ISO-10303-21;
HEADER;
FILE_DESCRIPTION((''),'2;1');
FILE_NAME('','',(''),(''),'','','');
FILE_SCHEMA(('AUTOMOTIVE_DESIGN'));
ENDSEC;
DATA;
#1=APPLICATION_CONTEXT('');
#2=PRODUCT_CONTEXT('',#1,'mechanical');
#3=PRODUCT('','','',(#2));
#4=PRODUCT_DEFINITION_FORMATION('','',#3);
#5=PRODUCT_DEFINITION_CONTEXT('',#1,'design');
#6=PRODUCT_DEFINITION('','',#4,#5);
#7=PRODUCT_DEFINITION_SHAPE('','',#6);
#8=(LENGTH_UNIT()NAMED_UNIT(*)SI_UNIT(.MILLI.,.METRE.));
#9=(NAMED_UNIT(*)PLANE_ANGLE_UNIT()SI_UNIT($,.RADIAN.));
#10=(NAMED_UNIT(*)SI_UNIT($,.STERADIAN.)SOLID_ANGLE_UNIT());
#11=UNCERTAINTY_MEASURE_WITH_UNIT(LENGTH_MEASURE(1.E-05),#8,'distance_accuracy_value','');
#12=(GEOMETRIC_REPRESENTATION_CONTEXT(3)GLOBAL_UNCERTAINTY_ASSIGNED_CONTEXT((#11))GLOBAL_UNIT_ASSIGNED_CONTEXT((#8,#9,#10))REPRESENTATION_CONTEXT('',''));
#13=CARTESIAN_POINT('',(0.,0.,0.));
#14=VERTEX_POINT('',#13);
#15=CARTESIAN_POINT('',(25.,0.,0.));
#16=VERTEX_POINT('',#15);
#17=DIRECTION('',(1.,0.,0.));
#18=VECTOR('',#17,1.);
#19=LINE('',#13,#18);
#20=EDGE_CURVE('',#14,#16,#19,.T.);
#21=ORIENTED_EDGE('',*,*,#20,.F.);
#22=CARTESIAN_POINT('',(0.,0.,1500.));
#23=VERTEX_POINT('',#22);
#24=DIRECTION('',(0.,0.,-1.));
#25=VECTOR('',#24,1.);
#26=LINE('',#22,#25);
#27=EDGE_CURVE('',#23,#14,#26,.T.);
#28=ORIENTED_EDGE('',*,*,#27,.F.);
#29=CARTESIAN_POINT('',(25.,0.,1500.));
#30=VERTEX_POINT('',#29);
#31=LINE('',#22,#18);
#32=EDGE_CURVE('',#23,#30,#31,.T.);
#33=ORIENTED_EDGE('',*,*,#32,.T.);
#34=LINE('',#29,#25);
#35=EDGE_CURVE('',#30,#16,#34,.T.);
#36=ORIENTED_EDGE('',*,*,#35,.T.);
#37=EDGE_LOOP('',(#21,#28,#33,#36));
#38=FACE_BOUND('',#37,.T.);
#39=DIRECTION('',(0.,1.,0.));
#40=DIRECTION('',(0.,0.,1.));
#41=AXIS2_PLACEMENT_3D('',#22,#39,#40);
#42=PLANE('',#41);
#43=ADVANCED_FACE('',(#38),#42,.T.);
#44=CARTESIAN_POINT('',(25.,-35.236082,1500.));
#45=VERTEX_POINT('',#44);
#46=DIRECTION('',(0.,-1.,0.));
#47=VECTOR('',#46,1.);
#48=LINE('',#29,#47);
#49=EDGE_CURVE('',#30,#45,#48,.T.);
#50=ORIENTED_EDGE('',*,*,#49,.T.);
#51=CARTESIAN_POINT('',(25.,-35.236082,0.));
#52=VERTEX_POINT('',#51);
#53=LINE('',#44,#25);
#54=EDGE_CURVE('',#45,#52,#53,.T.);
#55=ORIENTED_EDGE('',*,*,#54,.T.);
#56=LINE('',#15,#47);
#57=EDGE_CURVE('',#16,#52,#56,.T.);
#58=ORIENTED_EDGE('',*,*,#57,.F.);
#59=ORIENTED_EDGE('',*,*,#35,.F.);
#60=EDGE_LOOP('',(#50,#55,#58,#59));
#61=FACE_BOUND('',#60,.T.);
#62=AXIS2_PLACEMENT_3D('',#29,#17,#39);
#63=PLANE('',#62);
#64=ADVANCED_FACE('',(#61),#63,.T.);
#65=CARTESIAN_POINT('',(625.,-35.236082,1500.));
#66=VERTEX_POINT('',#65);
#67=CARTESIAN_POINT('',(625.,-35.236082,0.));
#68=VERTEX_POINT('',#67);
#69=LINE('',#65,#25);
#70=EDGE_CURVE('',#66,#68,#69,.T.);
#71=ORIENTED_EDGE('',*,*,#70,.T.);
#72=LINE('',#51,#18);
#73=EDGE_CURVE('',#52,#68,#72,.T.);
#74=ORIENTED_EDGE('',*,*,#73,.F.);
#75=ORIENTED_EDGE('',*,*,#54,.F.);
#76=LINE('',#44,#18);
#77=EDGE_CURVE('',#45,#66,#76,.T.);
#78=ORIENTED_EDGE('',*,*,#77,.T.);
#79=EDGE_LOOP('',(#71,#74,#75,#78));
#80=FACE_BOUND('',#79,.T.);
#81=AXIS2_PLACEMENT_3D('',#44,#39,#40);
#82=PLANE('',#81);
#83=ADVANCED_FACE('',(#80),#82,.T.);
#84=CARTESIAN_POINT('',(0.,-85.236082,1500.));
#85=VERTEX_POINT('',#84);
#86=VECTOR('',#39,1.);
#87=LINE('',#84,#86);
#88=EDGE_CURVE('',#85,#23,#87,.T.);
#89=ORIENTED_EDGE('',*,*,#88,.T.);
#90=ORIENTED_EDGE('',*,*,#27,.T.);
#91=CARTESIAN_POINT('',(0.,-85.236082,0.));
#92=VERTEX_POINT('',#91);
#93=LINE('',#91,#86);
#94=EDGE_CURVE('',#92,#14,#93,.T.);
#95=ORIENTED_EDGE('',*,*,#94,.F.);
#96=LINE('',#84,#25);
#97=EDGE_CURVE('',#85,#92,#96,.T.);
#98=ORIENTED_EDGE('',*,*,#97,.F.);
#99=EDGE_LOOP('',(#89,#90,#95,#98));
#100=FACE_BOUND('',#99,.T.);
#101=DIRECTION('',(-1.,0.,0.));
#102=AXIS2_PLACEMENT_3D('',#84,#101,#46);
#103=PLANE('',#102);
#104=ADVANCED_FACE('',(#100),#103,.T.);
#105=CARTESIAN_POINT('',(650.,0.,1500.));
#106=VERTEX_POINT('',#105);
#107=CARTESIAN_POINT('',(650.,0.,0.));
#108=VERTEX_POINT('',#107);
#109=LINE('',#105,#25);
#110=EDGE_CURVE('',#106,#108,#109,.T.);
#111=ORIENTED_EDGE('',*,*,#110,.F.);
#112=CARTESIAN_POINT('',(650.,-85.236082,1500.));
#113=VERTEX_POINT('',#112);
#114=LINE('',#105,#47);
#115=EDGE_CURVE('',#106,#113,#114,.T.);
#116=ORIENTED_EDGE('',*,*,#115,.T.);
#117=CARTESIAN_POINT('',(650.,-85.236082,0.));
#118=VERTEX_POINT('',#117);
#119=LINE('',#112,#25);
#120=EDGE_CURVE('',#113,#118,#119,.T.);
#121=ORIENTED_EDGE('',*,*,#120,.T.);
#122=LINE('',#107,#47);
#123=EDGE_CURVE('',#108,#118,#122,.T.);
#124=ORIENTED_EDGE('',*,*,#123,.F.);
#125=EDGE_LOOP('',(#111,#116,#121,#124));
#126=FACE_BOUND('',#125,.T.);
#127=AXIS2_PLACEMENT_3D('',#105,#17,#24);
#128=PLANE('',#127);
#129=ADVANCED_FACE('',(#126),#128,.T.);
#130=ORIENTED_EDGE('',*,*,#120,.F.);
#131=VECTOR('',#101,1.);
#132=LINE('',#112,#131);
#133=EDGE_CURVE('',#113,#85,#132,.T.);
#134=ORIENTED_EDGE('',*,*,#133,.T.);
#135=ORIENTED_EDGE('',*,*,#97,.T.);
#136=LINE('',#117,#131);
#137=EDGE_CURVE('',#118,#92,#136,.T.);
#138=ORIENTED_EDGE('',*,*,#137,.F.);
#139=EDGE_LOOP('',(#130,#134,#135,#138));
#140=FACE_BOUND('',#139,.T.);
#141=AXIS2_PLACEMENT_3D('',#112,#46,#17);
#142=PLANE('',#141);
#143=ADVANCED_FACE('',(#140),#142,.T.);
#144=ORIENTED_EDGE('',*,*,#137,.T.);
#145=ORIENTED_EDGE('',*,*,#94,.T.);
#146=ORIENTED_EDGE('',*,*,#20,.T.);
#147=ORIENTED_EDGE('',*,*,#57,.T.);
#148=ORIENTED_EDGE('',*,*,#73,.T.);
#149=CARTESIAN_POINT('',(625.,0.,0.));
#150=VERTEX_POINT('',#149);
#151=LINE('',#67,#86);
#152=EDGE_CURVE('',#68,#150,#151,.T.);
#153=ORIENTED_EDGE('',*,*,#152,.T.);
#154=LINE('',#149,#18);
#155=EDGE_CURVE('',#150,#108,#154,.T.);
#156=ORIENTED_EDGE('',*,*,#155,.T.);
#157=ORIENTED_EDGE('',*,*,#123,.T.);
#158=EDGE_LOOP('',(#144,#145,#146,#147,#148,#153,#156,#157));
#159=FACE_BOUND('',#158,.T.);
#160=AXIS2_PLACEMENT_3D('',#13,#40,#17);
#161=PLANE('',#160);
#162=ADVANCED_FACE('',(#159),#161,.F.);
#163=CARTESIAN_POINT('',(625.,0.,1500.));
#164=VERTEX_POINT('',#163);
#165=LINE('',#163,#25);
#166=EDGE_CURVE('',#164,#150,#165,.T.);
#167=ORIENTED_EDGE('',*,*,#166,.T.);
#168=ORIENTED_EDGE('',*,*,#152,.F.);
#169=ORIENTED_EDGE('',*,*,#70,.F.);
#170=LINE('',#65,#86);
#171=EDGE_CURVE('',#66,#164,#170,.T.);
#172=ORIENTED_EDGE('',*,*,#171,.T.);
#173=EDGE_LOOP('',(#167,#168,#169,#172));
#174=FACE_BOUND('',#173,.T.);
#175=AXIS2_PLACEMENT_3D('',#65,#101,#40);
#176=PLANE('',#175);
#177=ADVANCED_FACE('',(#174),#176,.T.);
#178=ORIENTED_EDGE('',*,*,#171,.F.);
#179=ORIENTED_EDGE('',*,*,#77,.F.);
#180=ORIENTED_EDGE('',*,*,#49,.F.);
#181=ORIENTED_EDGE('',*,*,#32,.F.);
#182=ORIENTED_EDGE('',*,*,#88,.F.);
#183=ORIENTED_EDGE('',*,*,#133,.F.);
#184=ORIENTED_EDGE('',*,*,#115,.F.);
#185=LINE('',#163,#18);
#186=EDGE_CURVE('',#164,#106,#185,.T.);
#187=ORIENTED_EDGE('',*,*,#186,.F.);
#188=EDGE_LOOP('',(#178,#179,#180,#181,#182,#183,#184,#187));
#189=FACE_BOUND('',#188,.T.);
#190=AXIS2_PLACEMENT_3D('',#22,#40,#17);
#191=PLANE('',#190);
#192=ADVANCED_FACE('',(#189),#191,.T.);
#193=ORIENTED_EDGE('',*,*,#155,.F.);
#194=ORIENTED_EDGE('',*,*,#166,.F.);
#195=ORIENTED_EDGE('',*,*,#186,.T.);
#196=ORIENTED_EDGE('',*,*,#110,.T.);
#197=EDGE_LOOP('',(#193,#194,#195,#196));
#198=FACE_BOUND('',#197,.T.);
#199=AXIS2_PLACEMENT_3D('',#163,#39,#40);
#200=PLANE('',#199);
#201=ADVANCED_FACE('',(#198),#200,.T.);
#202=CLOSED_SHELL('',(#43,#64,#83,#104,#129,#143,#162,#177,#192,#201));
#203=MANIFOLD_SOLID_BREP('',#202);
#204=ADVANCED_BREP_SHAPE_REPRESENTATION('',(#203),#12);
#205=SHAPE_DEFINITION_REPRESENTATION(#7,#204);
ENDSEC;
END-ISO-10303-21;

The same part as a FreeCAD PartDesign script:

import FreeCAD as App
import Part
import Sketcher


def add_polygon(sketch, points):
    """Adds a closed chain of lines whose ends are joined by coincident constraints."""
    first, n = sketch.GeometryCount, len(points)
    for a, b in zip(points, points[1:] + points[:1]):
        sketch.addGeometry(Part.LineSegment(App.Vector(*a, 0), App.Vector(*b, 0)), False)
    for i in range(n):
        sketch.addConstraint(Sketcher.Constraint("Coincident", first + i, 2, first + (i + 1) % n, 1))

doc = App.newDocument("Part")
body = doc.addObject("PartDesign::Body", "Body")

# Sketch on XY plane
sketch1 = doc.addObject("Sketcher::SketchObject", "Sketch")
body.addObject(sketch1)
sketch1.AttachmentSupport = (doc.XY_Plane, [""])
sketch1.MapMode = "FlatFace"
add_polygon(sketch1, [(25, 0), (0, 0), (0, -85), (650, -85), (650, 0), (625, 0), (625, -35), (25, -35)])  # lines 0-7
sketch1.addConstraint(Sketcher.Constraint("Horizontal", 0))
sketch1.addConstraint(Sketcher.Constraint("Vertical", 1))
sketch1.addConstraint(Sketcher.Constraint("Horizontal", 2))
sketch1.addConstraint(Sketcher.Constraint("Vertical", 3))
sketch1.addConstraint(Sketcher.Constraint("Horizontal", 4))
sketch1.addConstraint(Sketcher.Constraint("Vertical", 5))
sketch1.addConstraint(Sketcher.Constraint("Horizontal", 6))
sketch1.addConstraint(Sketcher.Constraint("Vertical", 7))
sketch1.addConstraint(Sketcher.Constraint("Coincident", 0, 2, -1, 1))
sketch1.addConstraint(Sketcher.Constraint("PointOnObject", 3, 2, -1))
sketch1.addConstraint(Sketcher.Constraint("Equal", 0, 4))
sketch1.addConstraint(Sketcher.Constraint("DistanceX", 0, 2, 0, 1, 25.0))
sketch1.addConstraint(Sketcher.Constraint("DistanceX", 2, 1, 2, 2, 650.0))
sketch1.addConstraint(Sketcher.Constraint("DistanceY", 2, 2, 5, 2, 50.0))
sketch1.addConstraint(Sketcher.Constraint("DistanceY", 1, 2, 1, 1, 85.236082))
pad1 = doc.addObject("PartDesign::Pad", "Pad")
body.addObject(pad1)
pad1.Profile = sketch1
pad1.Length = 1500

doc.recompute()
